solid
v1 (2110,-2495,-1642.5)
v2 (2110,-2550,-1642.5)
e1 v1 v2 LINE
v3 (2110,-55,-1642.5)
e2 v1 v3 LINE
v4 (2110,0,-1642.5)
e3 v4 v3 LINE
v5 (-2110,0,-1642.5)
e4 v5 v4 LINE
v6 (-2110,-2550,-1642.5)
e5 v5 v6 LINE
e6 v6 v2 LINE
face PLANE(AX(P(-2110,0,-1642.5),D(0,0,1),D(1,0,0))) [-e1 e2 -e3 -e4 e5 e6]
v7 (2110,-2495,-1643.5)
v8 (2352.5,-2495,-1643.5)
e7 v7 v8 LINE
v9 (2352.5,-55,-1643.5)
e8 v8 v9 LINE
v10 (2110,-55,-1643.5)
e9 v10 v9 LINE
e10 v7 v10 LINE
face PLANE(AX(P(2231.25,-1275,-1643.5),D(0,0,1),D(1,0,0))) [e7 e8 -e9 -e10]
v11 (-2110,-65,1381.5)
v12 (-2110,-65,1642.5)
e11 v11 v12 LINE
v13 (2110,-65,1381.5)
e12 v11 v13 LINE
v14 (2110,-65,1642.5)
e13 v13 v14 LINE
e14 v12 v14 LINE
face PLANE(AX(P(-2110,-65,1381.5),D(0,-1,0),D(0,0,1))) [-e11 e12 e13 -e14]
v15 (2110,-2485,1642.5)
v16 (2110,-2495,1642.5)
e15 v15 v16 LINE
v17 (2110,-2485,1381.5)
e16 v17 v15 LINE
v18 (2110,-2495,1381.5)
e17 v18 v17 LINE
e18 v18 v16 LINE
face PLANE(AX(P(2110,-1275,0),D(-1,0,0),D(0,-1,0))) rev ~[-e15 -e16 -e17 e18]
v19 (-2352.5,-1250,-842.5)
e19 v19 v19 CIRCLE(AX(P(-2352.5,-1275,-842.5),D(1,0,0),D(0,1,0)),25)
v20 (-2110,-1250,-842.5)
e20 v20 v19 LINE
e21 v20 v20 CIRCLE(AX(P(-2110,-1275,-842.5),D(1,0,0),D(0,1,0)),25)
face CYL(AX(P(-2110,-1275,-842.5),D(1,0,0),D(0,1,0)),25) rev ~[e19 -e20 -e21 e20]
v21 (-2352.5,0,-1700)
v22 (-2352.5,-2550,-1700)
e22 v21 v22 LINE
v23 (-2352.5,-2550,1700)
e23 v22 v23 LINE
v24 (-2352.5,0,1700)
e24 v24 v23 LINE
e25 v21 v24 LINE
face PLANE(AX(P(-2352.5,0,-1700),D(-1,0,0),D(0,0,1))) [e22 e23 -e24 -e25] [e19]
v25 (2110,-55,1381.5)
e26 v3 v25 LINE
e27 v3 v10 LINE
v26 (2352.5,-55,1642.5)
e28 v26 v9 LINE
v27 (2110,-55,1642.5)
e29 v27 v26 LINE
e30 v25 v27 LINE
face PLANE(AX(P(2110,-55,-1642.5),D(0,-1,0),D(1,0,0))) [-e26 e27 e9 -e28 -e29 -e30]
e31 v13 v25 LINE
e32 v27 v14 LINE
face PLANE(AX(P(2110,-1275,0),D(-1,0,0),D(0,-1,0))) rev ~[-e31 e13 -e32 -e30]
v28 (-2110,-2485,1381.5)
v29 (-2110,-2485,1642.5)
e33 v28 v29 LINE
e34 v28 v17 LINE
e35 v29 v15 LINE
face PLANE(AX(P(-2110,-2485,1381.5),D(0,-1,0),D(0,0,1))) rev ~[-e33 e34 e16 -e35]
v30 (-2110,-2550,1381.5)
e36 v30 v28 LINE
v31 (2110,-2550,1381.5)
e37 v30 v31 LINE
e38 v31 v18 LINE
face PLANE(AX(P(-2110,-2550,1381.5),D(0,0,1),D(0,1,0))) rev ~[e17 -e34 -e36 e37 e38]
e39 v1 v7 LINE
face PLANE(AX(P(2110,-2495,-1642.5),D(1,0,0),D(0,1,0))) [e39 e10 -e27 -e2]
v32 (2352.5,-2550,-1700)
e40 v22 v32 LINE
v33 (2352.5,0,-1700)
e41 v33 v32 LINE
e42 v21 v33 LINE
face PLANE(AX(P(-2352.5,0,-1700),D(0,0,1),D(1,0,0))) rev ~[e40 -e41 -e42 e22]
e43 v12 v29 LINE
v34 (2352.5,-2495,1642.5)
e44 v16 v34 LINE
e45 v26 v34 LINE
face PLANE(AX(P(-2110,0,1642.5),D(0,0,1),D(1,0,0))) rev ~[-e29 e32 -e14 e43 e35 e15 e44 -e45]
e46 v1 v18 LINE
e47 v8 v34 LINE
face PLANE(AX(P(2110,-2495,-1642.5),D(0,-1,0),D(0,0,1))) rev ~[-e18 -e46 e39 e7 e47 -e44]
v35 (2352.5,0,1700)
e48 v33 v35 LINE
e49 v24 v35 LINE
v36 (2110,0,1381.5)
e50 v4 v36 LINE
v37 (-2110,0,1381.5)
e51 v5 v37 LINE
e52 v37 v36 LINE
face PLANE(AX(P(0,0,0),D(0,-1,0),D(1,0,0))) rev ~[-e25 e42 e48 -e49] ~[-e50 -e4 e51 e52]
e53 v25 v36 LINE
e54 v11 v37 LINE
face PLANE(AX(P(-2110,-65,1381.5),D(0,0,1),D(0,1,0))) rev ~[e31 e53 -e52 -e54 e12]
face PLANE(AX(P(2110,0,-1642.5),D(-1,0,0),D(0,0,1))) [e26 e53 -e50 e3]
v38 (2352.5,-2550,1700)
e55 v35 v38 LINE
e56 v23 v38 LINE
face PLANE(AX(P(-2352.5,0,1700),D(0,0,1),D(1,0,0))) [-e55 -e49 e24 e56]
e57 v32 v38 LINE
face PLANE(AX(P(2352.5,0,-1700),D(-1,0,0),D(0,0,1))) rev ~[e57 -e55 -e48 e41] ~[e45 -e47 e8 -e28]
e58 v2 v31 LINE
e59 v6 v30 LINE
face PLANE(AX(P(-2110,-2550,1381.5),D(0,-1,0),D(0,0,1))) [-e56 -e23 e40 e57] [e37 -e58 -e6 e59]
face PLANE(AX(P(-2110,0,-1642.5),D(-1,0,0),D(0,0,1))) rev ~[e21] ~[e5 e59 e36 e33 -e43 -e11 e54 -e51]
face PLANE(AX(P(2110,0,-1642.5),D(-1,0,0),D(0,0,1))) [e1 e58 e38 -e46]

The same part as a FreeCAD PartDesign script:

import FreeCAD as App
import Part
import Sketcher
from FreeCAD import Vector

doc = App.newDocument("Part")
body = doc.addObject("PartDesign::Body", "Body")

sketch1 = doc.addObject("Sketcher::SketchObject", "Sketch")
body.addObject(sketch1)
sketch1.AttachmentSupport = (doc.XZ_Plane, [""])
sketch1.MapMode = "FlatFace"
sketch1.addGeometry([
    Part.LineSegment(Vector(-2352.5, 1700, 0), Vector(-2352.5, -1700, 0)),
    Part.LineSegment(Vector(-2352.5, -1700, 0), Vector(2352.5, -1700, 0)),
    Part.LineSegment(Vector(2352.5, -1700, 0), Vector(2352.5, 1700, 0)),
    Part.LineSegment(Vector(2352.5, 1700, 0), Vector(-2352.5, 1700, 0)),
    Part.LineSegment(Vector(2110, -1642.5, 0), Vector(-2110, -1642.5, 0)),
    Part.LineSegment(Vector(-2110, -1642.5, 0), Vector(-2110, 1642.5, 0)),
    Part.LineSegment(Vector(-2110, 1642.5, 0), Vector(2110, 1642.5, 0)),
    Part.LineSegment(Vector(2110, 1642.5, 0), Vector(2110, -1642.5, 0)),
], False)
sketch1.addConstraint([
    Sketcher.Constraint("Coincident", 0, 2, 1, 1),
    Sketcher.Constraint("Coincident", 1, 2, 2, 1),
    Sketcher.Constraint("Coincident", 2, 2, 3, 1),
    Sketcher.Constraint("Coincident", 3, 2, 0, 1),
    Sketcher.Constraint("Coincident", 4, 2, 5, 1),
    Sketcher.Constraint("Coincident", 5, 2, 6, 1),
    Sketcher.Constraint("Coincident", 6, 2, 7, 1),
    Sketcher.Constraint("Coincident", 7, 2, 4, 1),
    Sketcher.Constraint("Vertical", 0),
    Sketcher.Constraint("Horizontal", 1),
    Sketcher.Constraint("Vertical", 2),
    Sketcher.Constraint("Horizontal", 3),
    Sketcher.Constraint("Horizontal", 4),
    Sketcher.Constraint("Vertical", 5),
    Sketcher.Constraint("Horizontal", 6),
    Sketcher.Constraint("Vertical", 7),
    Sketcher.Constraint("Symmetric", 0, 2, 2, 2, -1, 1),
    Sketcher.Constraint("Symmetric", 4, 2, 6, 2, -1, 1),
    Sketcher.Constraint("DistanceX", 1, 1, 1, 2, 4705.0),
    Sketcher.Constraint("DistanceX", 4, 2, 4, 1, 4220.0),
    Sketcher.Constraint("DistanceY", 0, 2, 0, 1, 3400.0),
    Sketcher.Constraint("DistanceY", 5, 1, 5, 2, 3285.0),
])
pad1 = doc.addObject("PartDesign::Pad", "Pad")
body.addObject(pad1)
pad1.Profile = sketch1
pad1.Length = 2550

sketch2 = doc.addObject("Sketcher::SketchObject", "Sketch001")
body.addObject(sketch2)
sketch2.AttachmentSupport = (doc.YZ_Plane, [""])
sketch2.MapMode = "FlatFace"
sketch2.AttachmentOffset = App.Placement(Vector(0, 0, -2110), App.Rotation())
sketch2.addGeometry([
    Part.LineSegment(Vector(-2550, 1642.5, 0), Vector(-2550, 1381.5, 0)),
    Part.LineSegment(Vector(-2550, 1381.5, 0), Vector(-2485, 1381.5, 0)),
    Part.LineSegment(Vector(-2485, 1381.5, 0), Vector(-2485, 1642.5, 0)),
    Part.LineSegment(Vector(-2485, 1642.5, 0), Vector(-2550, 1642.5, 0)),
    Part.LineSegment(Vector(-65, 1642.5, 0), Vector(-65, 1381.5, 0)),
    Part.LineSegment(Vector(-65, 1381.5, 0), Vector(0, 1381.5, 0)),
    Part.LineSegment(Vector(0, 1381.5, 0), Vector(0, 1642.5, 0)),
    Part.LineSegment(Vector(0, 1642.5, 0), Vector(-65, 1642.5, 0)),
], False)
sketch2.addConstraint([
    Sketcher.Constraint("Coincident", 0, 2, 1, 1),
    Sketcher.Constraint("Coincident", 1, 2, 2, 1),
    Sketcher.Constraint("Coincident", 2, 2, 3, 1),
    Sketcher.Constraint("Coincident", 3, 2, 0, 1),
    Sketcher.Constraint("Coincident", 4, 2, 5, 1),
    Sketcher.Constraint("Coincident", 5, 2, 6, 1),
    Sketcher.Constraint("Coincident", 6, 2, 7, 1),
    Sketcher.Constraint("Coincident", 7, 2, 4, 1),
    Sketcher.Constraint("Vertical", 0),
    Sketcher.Constraint("Horizontal", 1),
    Sketcher.Constraint("Vertical", 2),
    Sketcher.Constraint("Horizontal", 3),
    Sketcher.Constraint("Vertical", 4),
    Sketcher.Constraint("Horizontal", 5),
    Sketcher.Constraint("Vertical", 6),
    Sketcher.Constraint("Horizontal", 7),
    Sketcher.Constraint("PointOnObject", 5, 2, -2),
    Sketcher.Constraint("Horizontal", 1, 2, 4, 2),
    Sketcher.Constraint("Horizontal", 3, 2, 6, 2),
    Sketcher.Constraint("Equal", 3, 5),
    Sketcher.Constraint("DistanceX", 1, 1, 1, 2, 65.0),
    Sketcher.Constraint("DistanceY", 0, 2, 0, 1, 261.0),
    Sketcher.Constraint("DistanceX", 0, 2, -1, 1, 2550.0),
    Sketcher.Constraint("DistanceY", -1, 1, 0, 2, 1381.5),
])
pad2 = doc.addObject("PartDesign::Pad", "Pad001")
body.addObject(pad2)
pad2.Profile = sketch2
pad2.Type = "UpToLast"

sketch3 = doc.addObject("Sketcher::SketchObject", "Sketch002")
body.addObject(sketch3)
sketch3.AttachmentSupport = (doc.YZ_Plane, [""])
sketch3.MapMode = "FlatFace"
sketch3.AttachmentOffset = App.Placement(Vector(0, 0, 2110), App.Rotation())
sketch3.addGeometry([
    Part.LineSegment(Vector(-55, 1642.5, 0), Vector(-55, -1642.5, 0)),
    Part.LineSegment(Vector(-55, -1642.5, 0), Vector(-2495, -1642.5, 0)),
    Part.LineSegment(Vector(-2495, -1642.5, 0), Vector(-2495, 1642.5, 0)),
    Part.LineSegment(Vector(-2495, 1642.5, 0), Vector(-55, 1642.5, 0)),
], False)
sketch3.addConstraint([
    Sketcher.Constraint("Coincident", 0, 2, 1, 1),
    Sketcher.Constraint("Coincident", 1, 2, 2, 1),
    Sketcher.Constraint("Coincident", 2, 2, 3, 1),
    Sketcher.Constraint("Coincident", 3, 2, 0, 1),
    Sketcher.Constraint("Vertical", 0),
    Sketcher.Constraint("Horizontal", 1),
    Sketcher.Constraint("Vertical", 2),
    Sketcher.Constraint("Horizontal", 3),
    Sketcher.Constraint("DistanceX", 1, 2, 1, 1, 2440.0),
    Sketcher.Constraint("DistanceY", 0, 2, 0, 1, 3285.0),
    Sketcher.Constraint("DistanceX", 0, 2, -1, 1, 55.0),
    Sketcher.Constraint("DistanceY", 0, 2, -1, 1, 1642.5),
])
pocket1 = doc.addObject("PartDesign::Pocket", "Pocket")
body.addObject(pocket1)
pocket1.Profile = sketch3
pocket1.Type = "ThroughAll"
pocket1.Reversed = True

sketch4 = doc.addObject("Sketcher::SketchObject", "Sketch003")
body.addObject(sketch4)
sketch4.AttachmentSupport = (doc.YZ_Plane, [""])
sketch4.MapMode = "FlatFace"
sketch4.AttachmentOffset = App.Placement(Vector(0, 0, -2110), App.Rotation())
sketch4.addGeometry(Part.Circle(Vector(-1275, -842.5, 0), Vector(0, 0, 1), 25), False)
sketch4.addConstraint([
    Sketcher.Constraint("Diameter", 0, 50.0),
    Sketcher.Constraint("DistanceX", 0, 3, -1, 1, 1275.0),
    Sketcher.Constraint("DistanceY", 0, 3, -1, 1, 842.5),
])
pocket2 = doc.addObject("PartDesign::Pocket", "Pocket001")
body.addObject(pocket2)
pocket2.Profile = sketch4
pocket2.Type = "ThroughAll"

sketch5 = doc.addObject("Sketcher::SketchObject", "Sketch004")
body.addObject(sketch5)
sketch5.AttachmentSupport = (doc.XY_Plane, [""])
sketch5.MapMode = "FlatFace"
sketch5.AttachmentOffset = App.Placement(Vector(0, 0, -1642.5), App.Rotation())
sketch5.addGeometry([
    Part.LineSegment(Vector(2110, -55, 0), Vector(2110, -2495, 0)),
    Part.LineSegment(Vector(2110, -2495, 0), Vector(2352.5, -2495, 0)),
    Part.LineSegment(Vector(2352.5, -2495, 0), Vector(2352.5, -55, 0)),
    Part.LineSegment(Vector(2352.5, -55, 0), Vector(2110, -55, 0)),
], False)
sketch5.addConstraint([
    Sketcher.Constraint("Coincident", 0, 2, 1, 1),
    Sketcher.Constraint("Coincident", 1, 2, 2, 1),
    Sketcher.Constraint("Coincident", 2, 2, 3, 1),
    Sketcher.Constraint("Coincident", 3, 2, 0, 1),
    Sketcher.Constraint("Vertical", 0),
    Sketcher.Constraint("Horizontal", 1),
    Sketcher.Constraint("Vertical", 2),
    Sketcher.Constraint("Horizontal", 3),
    Sketcher.Constraint("DistanceY", 0, 2, 0, 1, 2440.0),
    Sketcher.Constraint("DistanceX", 1, 1, 1, 2, 242.5),
    Sketcher.Constraint("DistanceX", -1, 1, 0, 2, 2110.0),
    Sketcher.Constraint("DistanceY", 0, 2, -1, 1, 2495.0),
])
pocket3 = doc.addObject("PartDesign::Pocket", "Pocket002")
body.addObject(pocket3)
pocket3.Profile = sketch5
pocket3.Length = 1

doc.recompute()
